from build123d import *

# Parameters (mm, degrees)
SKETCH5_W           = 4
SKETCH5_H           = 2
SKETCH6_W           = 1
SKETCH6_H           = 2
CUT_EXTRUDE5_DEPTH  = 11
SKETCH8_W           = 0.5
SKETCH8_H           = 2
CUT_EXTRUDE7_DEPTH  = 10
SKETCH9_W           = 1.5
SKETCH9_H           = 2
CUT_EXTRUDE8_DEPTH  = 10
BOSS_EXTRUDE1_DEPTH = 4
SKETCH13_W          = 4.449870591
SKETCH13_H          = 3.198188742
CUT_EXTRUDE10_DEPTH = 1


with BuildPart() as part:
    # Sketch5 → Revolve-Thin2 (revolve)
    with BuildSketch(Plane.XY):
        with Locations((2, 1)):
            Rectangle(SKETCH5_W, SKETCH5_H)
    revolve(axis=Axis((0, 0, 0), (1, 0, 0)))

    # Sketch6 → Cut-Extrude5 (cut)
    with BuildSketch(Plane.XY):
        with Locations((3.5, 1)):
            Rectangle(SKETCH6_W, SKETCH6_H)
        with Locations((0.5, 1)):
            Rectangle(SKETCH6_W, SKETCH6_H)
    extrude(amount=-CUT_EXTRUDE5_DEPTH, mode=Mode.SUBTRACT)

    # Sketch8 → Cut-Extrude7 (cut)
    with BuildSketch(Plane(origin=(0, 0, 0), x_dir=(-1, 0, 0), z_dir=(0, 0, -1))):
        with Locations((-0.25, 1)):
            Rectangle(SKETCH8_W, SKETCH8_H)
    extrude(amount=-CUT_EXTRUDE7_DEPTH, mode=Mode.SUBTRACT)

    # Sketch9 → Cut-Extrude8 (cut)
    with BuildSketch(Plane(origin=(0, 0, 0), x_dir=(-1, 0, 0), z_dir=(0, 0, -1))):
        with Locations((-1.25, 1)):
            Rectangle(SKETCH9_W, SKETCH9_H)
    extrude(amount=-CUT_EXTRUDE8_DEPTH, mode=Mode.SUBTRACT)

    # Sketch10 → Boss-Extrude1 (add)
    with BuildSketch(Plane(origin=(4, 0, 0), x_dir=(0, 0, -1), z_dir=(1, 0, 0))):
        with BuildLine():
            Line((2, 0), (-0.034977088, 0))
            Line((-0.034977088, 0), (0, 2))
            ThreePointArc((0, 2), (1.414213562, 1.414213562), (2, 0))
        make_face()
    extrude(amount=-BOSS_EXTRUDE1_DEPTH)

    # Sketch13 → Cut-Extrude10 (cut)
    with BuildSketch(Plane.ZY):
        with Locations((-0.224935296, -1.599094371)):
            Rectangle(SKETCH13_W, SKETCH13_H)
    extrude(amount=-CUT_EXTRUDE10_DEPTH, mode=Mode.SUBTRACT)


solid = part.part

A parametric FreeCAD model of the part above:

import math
import FreeCAD as App
import Part
import Sketcher
Q = App.Units.Quantity


def add_polygon(sketch, points):
    """Adds a closed chain of lines whose ends are joined by coincident constraints."""
    first, n = sketch.GeometryCount, len(points)
    for a, b in zip(points, points[1:] + points[:1]):
        sketch.addGeometry(Part.LineSegment(App.Vector(*a, 0), App.Vector(*b, 0)), False)
    for i in range(n):
        sketch.addConstraint(Sketcher.Constraint("Coincident", first + i, 2, first + (i + 1) % n, 1))

doc = App.newDocument("Part")
body = doc.addObject("PartDesign::Body", "Body")

sketch1 = body.newObject("Sketcher::SketchObject", "Sketch")
sketch1.AttachmentSupport = (doc.getObject("XY_Plane"), [""])
sketch1.MapMode = "FlatFace"
add_polygon(sketch1, [(0, 2), (0, 0), (4, 0), (4, 2)])
sketch1.addConstraint([
    Sketcher.Constraint("Vertical", 0),
    Sketcher.Constraint("Horizontal", 1),
    Sketcher.Constraint("Vertical", 2),
    Sketcher.Constraint("Horizontal", 3),
    Sketcher.Constraint("Coincident", 0, 2, -1, 1),
    Sketcher.Constraint("DistanceX", 1, 1, 1, 2, Q("4 mm")),
    Sketcher.Constraint("DistanceY", 0, 2, 0, 1, Q("2 mm")),
])
revolution = body.newObject("PartDesign::Revolution", "Revolution")
revolution.Profile = sketch1
revolution.ReferenceAxis = (sketch1, ["H_Axis"])
revolution.Angle = 360

sketch2 = body.newObject("Sketcher::SketchObject", "Sketch001")
sketch2.AttachmentSupport = (doc.getObject("XY_Plane"), [""])
sketch2.MapMode = "FlatFace"
add_polygon(sketch2, [(3, 2), (3, 0), (4, 0), (4, 2)])
add_polygon(sketch2, [(0, 2), (0, 0), (1, 0), (1, 2)])
sketch2.addConstraint([
    Sketcher.Constraint("Vertical", 0),
    Sketcher.Constraint("Horizontal", 1),
    Sketcher.Constraint("Vertical", 2),
    Sketcher.Constraint("Horizontal", 3),
    Sketcher.Constraint("Vertical", 4),
    Sketcher.Constraint("Horizontal", 5),
    Sketcher.Constraint("Vertical", 6),
    Sketcher.Constraint("Horizontal", 7),
    Sketcher.Constraint("Coincident", 4, 2, -1, 1),
    Sketcher.Constraint("PointOnObject", 0, 2, -1),
    Sketcher.Constraint("Horizontal", 3, 2, 6, 2),
    Sketcher.Constraint("Equal", 3, 5),
    Sketcher.Constraint("DistanceX", 1, 1, 1, 2, Q("1 mm")),
    Sketcher.Constraint("DistanceY", 0, 2, 0, 1, Q("2 mm")),
    Sketcher.Constraint("DistanceX", -1, 1, 0, 2, Q("3 mm")),
])
pocket1 = body.newObject("PartDesign::Pocket", "Pocket")
pocket1.Profile = sketch2
pocket1.Length = 11

sketch3 = body.newObject("Sketcher::SketchObject", "Sketch002")
sketch3.AttachmentSupport = (doc.getObject("XY_Plane"), [""])
sketch3.MapMode = "FlatFace"
add_polygon(sketch3, [(0.5, 2), (0.5, 0), (0, 0), (0, 2)])
sketch3.addConstraint([
    Sketcher.Constraint("Vertical", 0),
    Sketcher.Constraint("Horizontal", 1),
    Sketcher.Constraint("Vertical", 2),
    Sketcher.Constraint("Horizontal", 3),
    Sketcher.Constraint("Coincident", 1, 2, -1, 1),
    Sketcher.Constraint("DistanceY", 0, 2, 0, 1, Q("2 mm")),
    Sketcher.Constraint("DistanceX", 1, 2, 1, 1, Q("0.5 mm")),
])
pocket2 = body.newObject("PartDesign::Pocket", "Pocket001")
pocket2.Profile = sketch3
pocket2.Length = 10
pocket2.Reversed = True

sketch4 = body.newObject("Sketcher::SketchObject", "Sketch003")
sketch4.AttachmentSupport = (doc.getObject("XY_Plane"), [""])
sketch4.MapMode = "FlatFace"
add_polygon(sketch4, [(2, 2), (2, 0), (0.5, 0), (0.5, 2)])
sketch4.addConstraint([
    Sketcher.Constraint("Vertical", 0),
    Sketcher.Constraint("Horizontal", 1),
    Sketcher.Constraint("Vertical", 2),
    Sketcher.Constraint("Horizontal", 3),
    Sketcher.Constraint("PointOnObject", 0, 2, -1),
    Sketcher.Constraint("DistanceY", 0, 2, 0, 1, Q("2 mm")),
    Sketcher.Constraint("DistanceX", 1, 2, 1, 1, Q("1.5 mm")),
    Sketcher.Constraint("DistanceX", -1, 1, 0, 2, Q("2 mm")),
])
pocket3 = body.newObject("PartDesign::Pocket", "Pocket002")
pocket3.Profile = sketch4
pocket3.Length = 10
pocket3.Reversed = True

sketch5 = body.newObject("Sketcher::SketchObject", "Sketch004")
sketch5.AttachmentSupport = (doc.getObject("YZ_Plane"), [""])
sketch5.MapMode = "FlatFace"
sketch5.AttachmentOffset = App.Placement(App.Vector(0, 0, 4), App.Rotation())
sketch5.addGeometry([
    Part.LineSegment(App.Vector(0, 0, 0), App.Vector(0, -2, 0)),
    Part.ArcOfCircle(Part.Circle(App.Vector(0, 0, 0), App.Vector(0, 0, 1), 2), math.radians(-90), math.radians(0)),
    Part.LineSegment(App.Vector(2, 0, 0), App.Vector(0, 0, 0)),
], False)
sketch5.addConstraint([
    Sketcher.Constraint("Coincident", 0, 2, 1, 1),
    Sketcher.Constraint("Coincident", 1, 2, 2, 1),
    Sketcher.Constraint("Coincident", 2, 2, 0, 1),
    Sketcher.Constraint("Vertical", 0),
    Sketcher.Constraint("Coincident", 1, 3, -1, 1),
    Sketcher.Constraint("PointOnObject", 0, 2, -2),
    Sketcher.Constraint("PointOnObject", 1, 2, -1),
    Sketcher.Constraint("Radius", 1, Q("2 mm")),
    Sketcher.Constraint("DistanceY", 0, 2, 0, 1, Q("2.034977 mm")),
])
pad1 = body.newObject("PartDesign::Pad", "Pad")
pad1.Profile = sketch5
pad1.Length = 4
pad1.Reversed = True

sketch6 = body.newObject("Sketcher::SketchObject", "Sketch005")
sketch6.AttachmentSupport = (doc.getObject("YZ_Plane"), [""])
sketch6.MapMode = "FlatFace"
add_polygon(sketch6, [(0, -2.4), (-3.2, -2.4), (-3.2, 2), (0, 2)])
sketch6.addConstraint([
    Sketcher.Constraint("Horizontal", 0),
    Sketcher.Constraint("Vertical", 1),
    Sketcher.Constraint("Horizontal", 2),
    Sketcher.Constraint("Vertical", 3),
    Sketcher.Constraint("PointOnObject", 2, 2, -2),
    Sketcher.Constraint("DistanceY", -1, 1, 1, 2, Q("2 mm")),
    Sketcher.Constraint("DistanceX", 0, 2, 0, 1, Q("3.198189 mm")),
    Sketcher.Constraint("DistanceY", 1, 1, 1, 2, Q("4.449871 mm")),
])
pocket4 = body.newObject("PartDesign::Pocket", "Pocket003")
pocket4.Profile = sketch6
pocket4.Length = 1
pocket4.Reversed = True

doc.recompute()
